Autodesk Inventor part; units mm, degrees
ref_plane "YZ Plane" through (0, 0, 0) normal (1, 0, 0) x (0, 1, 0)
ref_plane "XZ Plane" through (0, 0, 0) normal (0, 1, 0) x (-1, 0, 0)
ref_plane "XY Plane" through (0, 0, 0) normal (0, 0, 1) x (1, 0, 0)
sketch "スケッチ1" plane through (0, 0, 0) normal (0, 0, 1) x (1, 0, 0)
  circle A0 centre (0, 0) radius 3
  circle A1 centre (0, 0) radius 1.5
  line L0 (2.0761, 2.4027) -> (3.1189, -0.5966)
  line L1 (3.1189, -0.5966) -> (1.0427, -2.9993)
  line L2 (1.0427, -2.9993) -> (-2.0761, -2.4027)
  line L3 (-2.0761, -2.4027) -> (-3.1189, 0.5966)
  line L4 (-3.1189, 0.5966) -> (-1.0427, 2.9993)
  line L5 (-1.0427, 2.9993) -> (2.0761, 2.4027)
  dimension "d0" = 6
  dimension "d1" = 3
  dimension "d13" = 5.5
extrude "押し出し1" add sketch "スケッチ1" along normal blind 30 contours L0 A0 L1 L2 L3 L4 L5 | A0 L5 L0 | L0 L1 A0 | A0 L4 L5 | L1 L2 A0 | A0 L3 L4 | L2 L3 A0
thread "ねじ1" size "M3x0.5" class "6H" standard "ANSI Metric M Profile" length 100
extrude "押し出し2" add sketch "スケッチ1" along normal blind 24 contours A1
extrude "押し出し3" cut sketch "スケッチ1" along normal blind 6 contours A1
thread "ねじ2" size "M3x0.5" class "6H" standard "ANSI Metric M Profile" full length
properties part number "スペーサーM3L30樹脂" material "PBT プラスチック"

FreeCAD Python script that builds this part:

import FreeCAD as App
import Part
import Sketcher
Q = App.Units.Quantity


def add_polygon(sketch, points):
    """Adds a closed chain of lines whose ends are joined by coincident constraints."""
    first, n = sketch.GeometryCount, len(points)
    for a, b in zip(points, points[1:] + points[:1]):
        sketch.addGeometry(Part.LineSegment(App.Vector(*a, 0), App.Vector(*b, 0)), False)
    for i in range(n):
        sketch.addConstraint(Sketcher.Constraint("Coincident", first + i, 2, first + (i + 1) % n, 1))

doc = App.newDocument("Part")
params = doc.addObject("Spreadsheet::Sheet", "Params")
for row, (alias, value) in enumerate([
    ("sketch1_diameter", "3 mm"),
    ("pad1_length", "30 mm"),
    ("sketch2_diameter", "3 mm"),
    ("pad2_length", "24 mm"),
    ("sketch3_diameter", "3 mm"),
    ("pocket1_length", "6 mm"),
], start=1):
    params.set(f"A{row}", alias)
    params.set(f"B{row}", "=" + value)
    params.setAlias(f"B{row}", alias)

body = doc.addObject("PartDesign::Body", "Body")

# Sketch on XY plane
sketch1 = body.newObject("Sketcher::SketchObject", "Sketch")
sketch1.AttachmentSupport = (doc.getObject("XY_Plane"), [""])
sketch1.MapMode = "FlatFace"
add_polygon(sketch1, [(2.1, 2.4), (-1, 3), (-3.1, 0.6), (-2.1, -2.4), (1, -3), (3.1, -0.6)])  # lines 0-5
sketch1.addGeometry(Part.Circle(App.Vector(0, 0, 0), App.Vector(0, 0, 1), 1.5), False)  # 6
sketch1.addConstraint([
    Sketcher.Constraint("Coincident", 6, 3, -1, 1),
    Sketcher.Constraint("Symmetric", 0, 2, 3, 2, -1, 1),
    Sketcher.Constraint("Symmetric", 1, 2, 4, 2, -1, 1),
    Sketcher.Constraint("Symmetric", 2, 2, 5, 2, -1, 1),
    Sketcher.Constraint("Equal", 0, 1),
    Sketcher.Constraint("Equal", 1, 2),
    Sketcher.Constraint("Diameter", 6, 3.0),
    Sketcher.Constraint("Angle", 0, Q("169.1706 deg")),
    Sketcher.Constraint("Angle", 1, Q("-130.8307 deg")),
    Sketcher.Constraint("DistanceX", 1, 2, -1, 1, 3.119),
    Sketcher.Constraint("DistanceX", 2, 2, -1, 1, 2.076),
])
sketch1.setExpression("Constraints[12]", "Params.sketch1_diameter")
pad1 = body.newObject("PartDesign::Pad", "Pad")
pad1.Profile = sketch1
pad1.setExpression("Length", "Params.pad1_length")

# Sketch on XY plane
sketch2 = body.newObject("Sketcher::SketchObject", "Sketch001")
sketch2.AttachmentSupport = (doc.getObject("XY_Plane"), [""])
sketch2.MapMode = "FlatFace"
sketch2.addGeometry(Part.Circle(App.Vector(0, 0, 0), App.Vector(0, 0, 1), 1.5), False)
sketch2.addConstraint([
    Sketcher.Constraint("Coincident", 0, 3, -1, 1),
    Sketcher.Constraint("Diameter", 0, 3.0),
])
sketch2.setExpression("Constraints[1]", "Params.sketch2_diameter")
pad2 = body.newObject("PartDesign::Pad", "Pad001")
pad2.Profile = sketch2
pad2.setExpression("Length", "Params.pad2_length")

# Sketch on XY plane
sketch3 = body.newObject("Sketcher::SketchObject", "Sketch002")
sketch3.AttachmentSupport = (doc.getObject("XY_Plane"), [""])
sketch3.MapMode = "FlatFace"
sketch3.addGeometry(Part.Circle(App.Vector(0, 0, 0), App.Vector(0, 0, 1), 1.5), False)
sketch3.addConstraint([
    Sketcher.Constraint("Coincident", 0, 3, -1, 1),
    Sketcher.Constraint("Diameter", 0, 3.0),
])
sketch3.setExpression("Constraints[1]", "Params.sketch3_diameter")
pocket1 = body.newObject("PartDesign::Pocket", "Pocket")
pocket1.Profile = sketch3
pocket1.setExpression("Length", "Params.pocket1_length")
pocket1.Reversed = True

doc.recompute()
